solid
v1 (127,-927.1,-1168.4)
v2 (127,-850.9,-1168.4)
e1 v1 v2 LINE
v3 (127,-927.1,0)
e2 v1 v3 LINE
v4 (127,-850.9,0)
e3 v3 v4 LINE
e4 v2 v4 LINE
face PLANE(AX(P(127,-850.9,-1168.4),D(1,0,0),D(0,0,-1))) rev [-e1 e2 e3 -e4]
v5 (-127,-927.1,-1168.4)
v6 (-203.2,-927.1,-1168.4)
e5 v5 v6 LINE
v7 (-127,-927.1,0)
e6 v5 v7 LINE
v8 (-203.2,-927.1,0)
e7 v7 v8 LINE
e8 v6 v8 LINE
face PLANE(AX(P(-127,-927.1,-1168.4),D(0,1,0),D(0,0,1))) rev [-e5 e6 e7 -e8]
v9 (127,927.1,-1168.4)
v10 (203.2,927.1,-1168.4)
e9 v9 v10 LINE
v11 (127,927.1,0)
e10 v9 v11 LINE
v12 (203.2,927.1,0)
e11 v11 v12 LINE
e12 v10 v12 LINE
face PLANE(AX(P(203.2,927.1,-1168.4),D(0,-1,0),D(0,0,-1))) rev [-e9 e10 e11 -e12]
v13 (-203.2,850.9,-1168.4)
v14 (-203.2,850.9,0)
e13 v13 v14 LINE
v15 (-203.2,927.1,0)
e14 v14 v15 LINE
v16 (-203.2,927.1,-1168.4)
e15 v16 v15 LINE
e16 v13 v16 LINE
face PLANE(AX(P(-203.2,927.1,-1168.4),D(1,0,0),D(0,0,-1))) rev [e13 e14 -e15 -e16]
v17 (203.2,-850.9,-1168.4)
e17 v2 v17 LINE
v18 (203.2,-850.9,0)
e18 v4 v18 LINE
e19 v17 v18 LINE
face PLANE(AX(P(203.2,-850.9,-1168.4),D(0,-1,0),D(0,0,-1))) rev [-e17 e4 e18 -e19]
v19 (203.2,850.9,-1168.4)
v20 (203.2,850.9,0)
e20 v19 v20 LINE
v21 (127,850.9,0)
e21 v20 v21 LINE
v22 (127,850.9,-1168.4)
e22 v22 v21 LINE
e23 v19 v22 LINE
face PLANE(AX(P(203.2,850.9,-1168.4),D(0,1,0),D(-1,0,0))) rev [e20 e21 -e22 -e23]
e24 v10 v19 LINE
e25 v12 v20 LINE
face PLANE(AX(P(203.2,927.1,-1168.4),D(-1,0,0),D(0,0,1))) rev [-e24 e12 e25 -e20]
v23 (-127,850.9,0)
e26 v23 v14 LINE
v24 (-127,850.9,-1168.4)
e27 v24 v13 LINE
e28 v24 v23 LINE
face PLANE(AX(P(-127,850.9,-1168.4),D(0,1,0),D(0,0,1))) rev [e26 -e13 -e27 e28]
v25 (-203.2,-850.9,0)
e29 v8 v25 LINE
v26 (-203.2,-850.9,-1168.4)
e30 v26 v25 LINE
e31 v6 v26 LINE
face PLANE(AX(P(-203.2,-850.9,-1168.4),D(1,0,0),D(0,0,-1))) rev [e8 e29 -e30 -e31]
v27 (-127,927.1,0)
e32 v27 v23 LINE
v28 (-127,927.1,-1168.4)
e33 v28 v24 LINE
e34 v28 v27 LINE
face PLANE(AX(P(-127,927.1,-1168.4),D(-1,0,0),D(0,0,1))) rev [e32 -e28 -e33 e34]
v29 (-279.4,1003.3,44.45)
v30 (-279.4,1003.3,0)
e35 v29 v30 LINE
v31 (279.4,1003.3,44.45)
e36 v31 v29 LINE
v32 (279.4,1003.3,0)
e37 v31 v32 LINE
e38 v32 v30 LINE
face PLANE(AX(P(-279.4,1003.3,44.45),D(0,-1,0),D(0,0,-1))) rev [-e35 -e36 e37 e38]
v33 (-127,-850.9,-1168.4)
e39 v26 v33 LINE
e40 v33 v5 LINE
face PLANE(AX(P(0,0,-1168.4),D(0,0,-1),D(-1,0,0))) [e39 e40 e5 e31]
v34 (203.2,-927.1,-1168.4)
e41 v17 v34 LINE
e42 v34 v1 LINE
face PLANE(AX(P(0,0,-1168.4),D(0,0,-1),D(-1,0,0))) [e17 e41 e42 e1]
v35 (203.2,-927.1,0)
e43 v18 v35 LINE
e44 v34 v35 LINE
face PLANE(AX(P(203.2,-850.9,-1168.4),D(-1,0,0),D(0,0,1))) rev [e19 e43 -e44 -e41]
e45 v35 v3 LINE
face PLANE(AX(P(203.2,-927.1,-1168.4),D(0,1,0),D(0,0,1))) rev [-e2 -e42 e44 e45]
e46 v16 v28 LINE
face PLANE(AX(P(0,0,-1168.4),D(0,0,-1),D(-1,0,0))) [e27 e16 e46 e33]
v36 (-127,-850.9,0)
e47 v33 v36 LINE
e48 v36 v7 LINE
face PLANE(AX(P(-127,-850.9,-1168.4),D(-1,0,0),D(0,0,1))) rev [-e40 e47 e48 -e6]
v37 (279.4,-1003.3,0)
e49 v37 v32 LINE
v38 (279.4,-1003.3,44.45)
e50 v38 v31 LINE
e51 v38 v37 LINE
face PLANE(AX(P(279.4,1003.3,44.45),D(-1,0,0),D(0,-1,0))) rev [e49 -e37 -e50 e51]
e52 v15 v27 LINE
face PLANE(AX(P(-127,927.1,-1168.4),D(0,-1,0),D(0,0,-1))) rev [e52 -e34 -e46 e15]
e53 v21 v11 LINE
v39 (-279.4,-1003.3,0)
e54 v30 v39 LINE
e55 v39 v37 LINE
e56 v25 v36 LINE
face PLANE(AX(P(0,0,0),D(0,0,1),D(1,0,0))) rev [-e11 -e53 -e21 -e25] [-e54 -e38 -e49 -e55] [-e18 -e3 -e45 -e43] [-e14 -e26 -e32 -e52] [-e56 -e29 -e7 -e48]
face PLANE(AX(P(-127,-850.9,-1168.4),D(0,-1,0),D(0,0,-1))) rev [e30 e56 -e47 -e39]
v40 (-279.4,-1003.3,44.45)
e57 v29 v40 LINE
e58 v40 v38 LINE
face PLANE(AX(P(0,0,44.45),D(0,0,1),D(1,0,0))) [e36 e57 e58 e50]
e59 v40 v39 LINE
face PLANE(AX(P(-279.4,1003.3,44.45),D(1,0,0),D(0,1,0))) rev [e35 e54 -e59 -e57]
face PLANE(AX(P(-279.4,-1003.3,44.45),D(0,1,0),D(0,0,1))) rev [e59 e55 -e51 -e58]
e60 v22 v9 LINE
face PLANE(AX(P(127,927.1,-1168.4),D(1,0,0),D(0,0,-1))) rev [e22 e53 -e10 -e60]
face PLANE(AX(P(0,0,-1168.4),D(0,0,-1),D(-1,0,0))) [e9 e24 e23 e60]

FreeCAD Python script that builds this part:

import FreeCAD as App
import Part
import Sketcher

V = App.Vector
Q = App.Units.Quantity

doc = App.newDocument("Part")
params = doc.addObject("Spreadsheet::Sheet", "Params")
for row, (alias, value) in enumerate([
    ("sketch1_width", "22 in"),
    ("sketch1_height", "79 in"),
    ("pad1_length", "1.75 in"),
    ("sketch2_width", "3 in"),
    ("pad2_length", "46 in"),
], start=1):
    params.set(f"A{row}", alias)
    params.set(f"B{row}", "=" + value)
    params.setAlias(f"B{row}", alias)

body = doc.addObject("PartDesign::Body", "Body")

# Sketch on XY plane
sketch1 = body.newObject("Sketcher::SketchObject", "Sketch")
sketch1.AttachmentSupport = (doc.getObject("XY_Plane"), [""])
sketch1.MapMode = "FlatFace"
sketch1.addGeometry(Part.LineSegment(V(-279.4, 1003.3, 0), V(-279.4, -1003.3, 0)), False)
sketch1.addGeometry(Part.LineSegment(V(-279.4, -1003.3, 0), V(279.4, -1003.3, 0)), False)
sketch1.addGeometry(Part.LineSegment(V(279.4, -1003.3, 0), V(279.4, 1003.3, 0)), False)
sketch1.addGeometry(Part.LineSegment(V(279.4, 1003.3, 0), V(-279.4, 1003.3, 0)), False)
sketch1.addConstraint(Sketcher.Constraint("Coincident", 0, 2, 1, 1))
sketch1.addConstraint(Sketcher.Constraint("Coincident", 1, 2, 2, 1))
sketch1.addConstraint(Sketcher.Constraint("Coincident", 2, 2, 3, 1))
sketch1.addConstraint(Sketcher.Constraint("Coincident", 3, 2, 0, 1))
sketch1.addConstraint(Sketcher.Constraint("Vertical", 0))
sketch1.addConstraint(Sketcher.Constraint("Horizontal", 1))
sketch1.addConstraint(Sketcher.Constraint("Vertical", 2))
sketch1.addConstraint(Sketcher.Constraint("Horizontal", 3))
sketch1.addConstraint(Sketcher.Constraint("Symmetric", 0, 2, 2, 2, -1, 1))
sketch1.addConstraint(Sketcher.Constraint("DistanceX", 1, 1, 1, 2, Q("22 in")))
sketch1.addConstraint(Sketcher.Constraint("DistanceY", 0, 2, 0, 1, Q("79 in")))
sketch1.setExpression("Constraints[9]", "Params.sketch1_width")
sketch1.setExpression("Constraints[10]", "Params.sketch1_height")
pad1 = body.newObject("PartDesign::Pad", "Pad")
pad1.Profile = sketch1
pad1.setExpression("Length", "Params.pad1_length")

# Sketch on XY plane
sketch2 = body.newObject("Sketcher::SketchObject", "Sketch001")
sketch2.AttachmentSupport = (doc.getObject("XY_Plane"), [""])
sketch2.MapMode = "FlatFace"
sketch2.addGeometry(Part.LineSegment(V(203.2, 927.1, 0), V(203.2, 850.9, 0)), False)
sketch2.addGeometry(Part.LineSegment(V(203.2, 850.9, 0), V(127, 850.9, 0)), False)
sketch2.addGeometry(Part.LineSegment(V(127, 850.9, 0), V(127, 927.1, 0)), False)
sketch2.addGeometry(Part.LineSegment(V(127, 927.1, 0), V(203.2, 927.1, 0)), False)
sketch2.addGeometry(Part.LineSegment(V(-127, 927.1, 0), V(-127, 850.9, 0)), False)
sketch2.addGeometry(Part.LineSegment(V(-127, 850.9, 0), V(-203.2, 850.9, 0)), False)
sketch2.addGeometry(Part.LineSegment(V(-203.2, 850.9, 0), V(-203.2, 927.1, 0)), False)
sketch2.addGeometry(Part.LineSegment(V(-203.2, 927.1, 0), V(-127, 927.1, 0)), False)
sketch2.addGeometry(Part.LineSegment(V(203.2, -850.9, 0), V(203.2, -927.1, 0)), False)
sketch2.addGeometry(Part.LineSegment(V(203.2, -927.1, 0), V(127, -927.1, 0)), False)
sketch2.addGeometry(Part.LineSegment(V(127, -927.1, 0), V(127, -850.9, 0)), False)
sketch2.addGeometry(Part.LineSegment(V(127, -850.9, 0), V(203.2, -850.9, 0)), False)
sketch2.addGeometry(Part.LineSegment(V(-127, -850.9, 0), V(-127, -927.1, 0)), False)
sketch2.addGeometry(Part.LineSegment(V(-127, -927.1, 0), V(-203.2, -927.1, 0)), False)
sketch2.addGeometry(Part.LineSegment(V(-203.2, -927.1, 0), V(-203.2, -850.9, 0)), False)
sketch2.addGeometry(Part.LineSegment(V(-203.2, -850.9, 0), V(-127, -850.9, 0)), False)
sketch2.addConstraint(Sketcher.Constraint("Coincident", 0, 2, 1, 1))
sketch2.addConstraint(Sketcher.Constraint("Coincident", 1, 2, 2, 1))
sketch2.addConstraint(Sketcher.Constraint("Coincident", 2, 2, 3, 1))
sketch2.addConstraint(Sketcher.Constraint("Coincident", 3, 2, 0, 1))
sketch2.addConstraint(Sketcher.Constraint("Coincident", 4, 2, 5, 1))
sketch2.addConstraint(Sketcher.Constraint("Coincident", 5, 2, 6, 1))
sketch2.addConstraint(Sketcher.Constraint("Coincident", 6, 2, 7, 1))
sketch2.addConstraint(Sketcher.Constraint("Coincident", 7, 2, 4, 1))
sketch2.addConstraint(Sketcher.Constraint("Coincident", 8, 2, 9, 1))
sketch2.addConstraint(Sketcher.Constraint("Coincident", 9, 2, 10, 1))
sketch2.addConstraint(Sketcher.Constraint("Coincident", 10, 2, 11, 1))
sketch2.addConstraint(Sketcher.Constraint("Coincident", 11, 2, 8, 1))
sketch2.addConstraint(Sketcher.Constraint("Coincident", 12, 2, 13, 1))
sketch2.addConstraint(Sketcher.Constraint("Coincident", 13, 2, 14, 1))
sketch2.addConstraint(Sketcher.Constraint("Coincident", 14, 2, 15, 1))
sketch2.addConstraint(Sketcher.Constraint("Coincident", 15, 2, 12, 1))
sketch2.addConstraint(Sketcher.Constraint("Vertical", 0))
sketch2.addConstraint(Sketcher.Constraint("Horizontal", 1))
sketch2.addConstraint(Sketcher.Constraint("Vertical", 2))
sketch2.addConstraint(Sketcher.Constraint("Horizontal", 3))
sketch2.addConstraint(Sketcher.Constraint("Vertical", 4))
sketch2.addConstraint(Sketcher.Constraint("Horizontal", 5))
sketch2.addConstraint(Sketcher.Constraint("Vertical", 6))
sketch2.addConstraint(Sketcher.Constraint("Horizontal", 7))
sketch2.addConstraint(Sketcher.Constraint("Vertical", 8))
sketch2.addConstraint(Sketcher.Constraint("Horizontal", 9))
sketch2.addConstraint(Sketcher.Constraint("Vertical", 10))
sketch2.addConstraint(Sketcher.Constraint("Horizontal", 11))
sketch2.addConstraint(Sketcher.Constraint("Vertical", 12))
sketch2.addConstraint(Sketcher.Constraint("Horizontal", 13))
sketch2.addConstraint(Sketcher.Constraint("Vertical", 14))
sketch2.addConstraint(Sketcher.Constraint("Horizontal", 15))
sketch2.addConstraint(Sketcher.Constraint("Symmetric", 6, 2, 8, 2, -1, 1))
sketch2.addConstraint(Sketcher.Constraint("Symmetric", 4, 2, 10, 2, -1, 1))
sketch2.addConstraint(Sketcher.Constraint("Symmetric", 2, 2, 12, 2, -1, 1))
sketch2.addConstraint(Sketcher.Constraint("Symmetric", 0, 2, 14, 2, -1, 1))
sketch2.addConstraint(Sketcher.Constraint("Symmetric", 1, 2, 4, 2, -2))
sketch2.addConstraint(Sketcher.Constraint("Symmetric", 3, 2, 6, 2, -2))
sketch2.addConstraint(Sketcher.Constraint("Equal", 15, 0))
sketch2.addConstraint(Sketcher.Constraint("DistanceX", 1, 2, 1, 1, Q("3 in")))
sketch2.addConstraint(Sketcher.Constraint("DistanceX", -1, 1, 0, 2, Q("8 in")))
sketch2.addConstraint(Sketcher.Constraint("DistanceY", 8, 2, 0, 2, Q("70 in")))
sketch2.setExpression("Constraints[39]", "Params.sketch2_width")
pad2 = body.newObject("PartDesign::Pad", "Pad001")
pad2.Profile = sketch2
pad2.setExpression("Length", "Params.pad2_length")
pad2.Reversed = True

doc.recompute()
